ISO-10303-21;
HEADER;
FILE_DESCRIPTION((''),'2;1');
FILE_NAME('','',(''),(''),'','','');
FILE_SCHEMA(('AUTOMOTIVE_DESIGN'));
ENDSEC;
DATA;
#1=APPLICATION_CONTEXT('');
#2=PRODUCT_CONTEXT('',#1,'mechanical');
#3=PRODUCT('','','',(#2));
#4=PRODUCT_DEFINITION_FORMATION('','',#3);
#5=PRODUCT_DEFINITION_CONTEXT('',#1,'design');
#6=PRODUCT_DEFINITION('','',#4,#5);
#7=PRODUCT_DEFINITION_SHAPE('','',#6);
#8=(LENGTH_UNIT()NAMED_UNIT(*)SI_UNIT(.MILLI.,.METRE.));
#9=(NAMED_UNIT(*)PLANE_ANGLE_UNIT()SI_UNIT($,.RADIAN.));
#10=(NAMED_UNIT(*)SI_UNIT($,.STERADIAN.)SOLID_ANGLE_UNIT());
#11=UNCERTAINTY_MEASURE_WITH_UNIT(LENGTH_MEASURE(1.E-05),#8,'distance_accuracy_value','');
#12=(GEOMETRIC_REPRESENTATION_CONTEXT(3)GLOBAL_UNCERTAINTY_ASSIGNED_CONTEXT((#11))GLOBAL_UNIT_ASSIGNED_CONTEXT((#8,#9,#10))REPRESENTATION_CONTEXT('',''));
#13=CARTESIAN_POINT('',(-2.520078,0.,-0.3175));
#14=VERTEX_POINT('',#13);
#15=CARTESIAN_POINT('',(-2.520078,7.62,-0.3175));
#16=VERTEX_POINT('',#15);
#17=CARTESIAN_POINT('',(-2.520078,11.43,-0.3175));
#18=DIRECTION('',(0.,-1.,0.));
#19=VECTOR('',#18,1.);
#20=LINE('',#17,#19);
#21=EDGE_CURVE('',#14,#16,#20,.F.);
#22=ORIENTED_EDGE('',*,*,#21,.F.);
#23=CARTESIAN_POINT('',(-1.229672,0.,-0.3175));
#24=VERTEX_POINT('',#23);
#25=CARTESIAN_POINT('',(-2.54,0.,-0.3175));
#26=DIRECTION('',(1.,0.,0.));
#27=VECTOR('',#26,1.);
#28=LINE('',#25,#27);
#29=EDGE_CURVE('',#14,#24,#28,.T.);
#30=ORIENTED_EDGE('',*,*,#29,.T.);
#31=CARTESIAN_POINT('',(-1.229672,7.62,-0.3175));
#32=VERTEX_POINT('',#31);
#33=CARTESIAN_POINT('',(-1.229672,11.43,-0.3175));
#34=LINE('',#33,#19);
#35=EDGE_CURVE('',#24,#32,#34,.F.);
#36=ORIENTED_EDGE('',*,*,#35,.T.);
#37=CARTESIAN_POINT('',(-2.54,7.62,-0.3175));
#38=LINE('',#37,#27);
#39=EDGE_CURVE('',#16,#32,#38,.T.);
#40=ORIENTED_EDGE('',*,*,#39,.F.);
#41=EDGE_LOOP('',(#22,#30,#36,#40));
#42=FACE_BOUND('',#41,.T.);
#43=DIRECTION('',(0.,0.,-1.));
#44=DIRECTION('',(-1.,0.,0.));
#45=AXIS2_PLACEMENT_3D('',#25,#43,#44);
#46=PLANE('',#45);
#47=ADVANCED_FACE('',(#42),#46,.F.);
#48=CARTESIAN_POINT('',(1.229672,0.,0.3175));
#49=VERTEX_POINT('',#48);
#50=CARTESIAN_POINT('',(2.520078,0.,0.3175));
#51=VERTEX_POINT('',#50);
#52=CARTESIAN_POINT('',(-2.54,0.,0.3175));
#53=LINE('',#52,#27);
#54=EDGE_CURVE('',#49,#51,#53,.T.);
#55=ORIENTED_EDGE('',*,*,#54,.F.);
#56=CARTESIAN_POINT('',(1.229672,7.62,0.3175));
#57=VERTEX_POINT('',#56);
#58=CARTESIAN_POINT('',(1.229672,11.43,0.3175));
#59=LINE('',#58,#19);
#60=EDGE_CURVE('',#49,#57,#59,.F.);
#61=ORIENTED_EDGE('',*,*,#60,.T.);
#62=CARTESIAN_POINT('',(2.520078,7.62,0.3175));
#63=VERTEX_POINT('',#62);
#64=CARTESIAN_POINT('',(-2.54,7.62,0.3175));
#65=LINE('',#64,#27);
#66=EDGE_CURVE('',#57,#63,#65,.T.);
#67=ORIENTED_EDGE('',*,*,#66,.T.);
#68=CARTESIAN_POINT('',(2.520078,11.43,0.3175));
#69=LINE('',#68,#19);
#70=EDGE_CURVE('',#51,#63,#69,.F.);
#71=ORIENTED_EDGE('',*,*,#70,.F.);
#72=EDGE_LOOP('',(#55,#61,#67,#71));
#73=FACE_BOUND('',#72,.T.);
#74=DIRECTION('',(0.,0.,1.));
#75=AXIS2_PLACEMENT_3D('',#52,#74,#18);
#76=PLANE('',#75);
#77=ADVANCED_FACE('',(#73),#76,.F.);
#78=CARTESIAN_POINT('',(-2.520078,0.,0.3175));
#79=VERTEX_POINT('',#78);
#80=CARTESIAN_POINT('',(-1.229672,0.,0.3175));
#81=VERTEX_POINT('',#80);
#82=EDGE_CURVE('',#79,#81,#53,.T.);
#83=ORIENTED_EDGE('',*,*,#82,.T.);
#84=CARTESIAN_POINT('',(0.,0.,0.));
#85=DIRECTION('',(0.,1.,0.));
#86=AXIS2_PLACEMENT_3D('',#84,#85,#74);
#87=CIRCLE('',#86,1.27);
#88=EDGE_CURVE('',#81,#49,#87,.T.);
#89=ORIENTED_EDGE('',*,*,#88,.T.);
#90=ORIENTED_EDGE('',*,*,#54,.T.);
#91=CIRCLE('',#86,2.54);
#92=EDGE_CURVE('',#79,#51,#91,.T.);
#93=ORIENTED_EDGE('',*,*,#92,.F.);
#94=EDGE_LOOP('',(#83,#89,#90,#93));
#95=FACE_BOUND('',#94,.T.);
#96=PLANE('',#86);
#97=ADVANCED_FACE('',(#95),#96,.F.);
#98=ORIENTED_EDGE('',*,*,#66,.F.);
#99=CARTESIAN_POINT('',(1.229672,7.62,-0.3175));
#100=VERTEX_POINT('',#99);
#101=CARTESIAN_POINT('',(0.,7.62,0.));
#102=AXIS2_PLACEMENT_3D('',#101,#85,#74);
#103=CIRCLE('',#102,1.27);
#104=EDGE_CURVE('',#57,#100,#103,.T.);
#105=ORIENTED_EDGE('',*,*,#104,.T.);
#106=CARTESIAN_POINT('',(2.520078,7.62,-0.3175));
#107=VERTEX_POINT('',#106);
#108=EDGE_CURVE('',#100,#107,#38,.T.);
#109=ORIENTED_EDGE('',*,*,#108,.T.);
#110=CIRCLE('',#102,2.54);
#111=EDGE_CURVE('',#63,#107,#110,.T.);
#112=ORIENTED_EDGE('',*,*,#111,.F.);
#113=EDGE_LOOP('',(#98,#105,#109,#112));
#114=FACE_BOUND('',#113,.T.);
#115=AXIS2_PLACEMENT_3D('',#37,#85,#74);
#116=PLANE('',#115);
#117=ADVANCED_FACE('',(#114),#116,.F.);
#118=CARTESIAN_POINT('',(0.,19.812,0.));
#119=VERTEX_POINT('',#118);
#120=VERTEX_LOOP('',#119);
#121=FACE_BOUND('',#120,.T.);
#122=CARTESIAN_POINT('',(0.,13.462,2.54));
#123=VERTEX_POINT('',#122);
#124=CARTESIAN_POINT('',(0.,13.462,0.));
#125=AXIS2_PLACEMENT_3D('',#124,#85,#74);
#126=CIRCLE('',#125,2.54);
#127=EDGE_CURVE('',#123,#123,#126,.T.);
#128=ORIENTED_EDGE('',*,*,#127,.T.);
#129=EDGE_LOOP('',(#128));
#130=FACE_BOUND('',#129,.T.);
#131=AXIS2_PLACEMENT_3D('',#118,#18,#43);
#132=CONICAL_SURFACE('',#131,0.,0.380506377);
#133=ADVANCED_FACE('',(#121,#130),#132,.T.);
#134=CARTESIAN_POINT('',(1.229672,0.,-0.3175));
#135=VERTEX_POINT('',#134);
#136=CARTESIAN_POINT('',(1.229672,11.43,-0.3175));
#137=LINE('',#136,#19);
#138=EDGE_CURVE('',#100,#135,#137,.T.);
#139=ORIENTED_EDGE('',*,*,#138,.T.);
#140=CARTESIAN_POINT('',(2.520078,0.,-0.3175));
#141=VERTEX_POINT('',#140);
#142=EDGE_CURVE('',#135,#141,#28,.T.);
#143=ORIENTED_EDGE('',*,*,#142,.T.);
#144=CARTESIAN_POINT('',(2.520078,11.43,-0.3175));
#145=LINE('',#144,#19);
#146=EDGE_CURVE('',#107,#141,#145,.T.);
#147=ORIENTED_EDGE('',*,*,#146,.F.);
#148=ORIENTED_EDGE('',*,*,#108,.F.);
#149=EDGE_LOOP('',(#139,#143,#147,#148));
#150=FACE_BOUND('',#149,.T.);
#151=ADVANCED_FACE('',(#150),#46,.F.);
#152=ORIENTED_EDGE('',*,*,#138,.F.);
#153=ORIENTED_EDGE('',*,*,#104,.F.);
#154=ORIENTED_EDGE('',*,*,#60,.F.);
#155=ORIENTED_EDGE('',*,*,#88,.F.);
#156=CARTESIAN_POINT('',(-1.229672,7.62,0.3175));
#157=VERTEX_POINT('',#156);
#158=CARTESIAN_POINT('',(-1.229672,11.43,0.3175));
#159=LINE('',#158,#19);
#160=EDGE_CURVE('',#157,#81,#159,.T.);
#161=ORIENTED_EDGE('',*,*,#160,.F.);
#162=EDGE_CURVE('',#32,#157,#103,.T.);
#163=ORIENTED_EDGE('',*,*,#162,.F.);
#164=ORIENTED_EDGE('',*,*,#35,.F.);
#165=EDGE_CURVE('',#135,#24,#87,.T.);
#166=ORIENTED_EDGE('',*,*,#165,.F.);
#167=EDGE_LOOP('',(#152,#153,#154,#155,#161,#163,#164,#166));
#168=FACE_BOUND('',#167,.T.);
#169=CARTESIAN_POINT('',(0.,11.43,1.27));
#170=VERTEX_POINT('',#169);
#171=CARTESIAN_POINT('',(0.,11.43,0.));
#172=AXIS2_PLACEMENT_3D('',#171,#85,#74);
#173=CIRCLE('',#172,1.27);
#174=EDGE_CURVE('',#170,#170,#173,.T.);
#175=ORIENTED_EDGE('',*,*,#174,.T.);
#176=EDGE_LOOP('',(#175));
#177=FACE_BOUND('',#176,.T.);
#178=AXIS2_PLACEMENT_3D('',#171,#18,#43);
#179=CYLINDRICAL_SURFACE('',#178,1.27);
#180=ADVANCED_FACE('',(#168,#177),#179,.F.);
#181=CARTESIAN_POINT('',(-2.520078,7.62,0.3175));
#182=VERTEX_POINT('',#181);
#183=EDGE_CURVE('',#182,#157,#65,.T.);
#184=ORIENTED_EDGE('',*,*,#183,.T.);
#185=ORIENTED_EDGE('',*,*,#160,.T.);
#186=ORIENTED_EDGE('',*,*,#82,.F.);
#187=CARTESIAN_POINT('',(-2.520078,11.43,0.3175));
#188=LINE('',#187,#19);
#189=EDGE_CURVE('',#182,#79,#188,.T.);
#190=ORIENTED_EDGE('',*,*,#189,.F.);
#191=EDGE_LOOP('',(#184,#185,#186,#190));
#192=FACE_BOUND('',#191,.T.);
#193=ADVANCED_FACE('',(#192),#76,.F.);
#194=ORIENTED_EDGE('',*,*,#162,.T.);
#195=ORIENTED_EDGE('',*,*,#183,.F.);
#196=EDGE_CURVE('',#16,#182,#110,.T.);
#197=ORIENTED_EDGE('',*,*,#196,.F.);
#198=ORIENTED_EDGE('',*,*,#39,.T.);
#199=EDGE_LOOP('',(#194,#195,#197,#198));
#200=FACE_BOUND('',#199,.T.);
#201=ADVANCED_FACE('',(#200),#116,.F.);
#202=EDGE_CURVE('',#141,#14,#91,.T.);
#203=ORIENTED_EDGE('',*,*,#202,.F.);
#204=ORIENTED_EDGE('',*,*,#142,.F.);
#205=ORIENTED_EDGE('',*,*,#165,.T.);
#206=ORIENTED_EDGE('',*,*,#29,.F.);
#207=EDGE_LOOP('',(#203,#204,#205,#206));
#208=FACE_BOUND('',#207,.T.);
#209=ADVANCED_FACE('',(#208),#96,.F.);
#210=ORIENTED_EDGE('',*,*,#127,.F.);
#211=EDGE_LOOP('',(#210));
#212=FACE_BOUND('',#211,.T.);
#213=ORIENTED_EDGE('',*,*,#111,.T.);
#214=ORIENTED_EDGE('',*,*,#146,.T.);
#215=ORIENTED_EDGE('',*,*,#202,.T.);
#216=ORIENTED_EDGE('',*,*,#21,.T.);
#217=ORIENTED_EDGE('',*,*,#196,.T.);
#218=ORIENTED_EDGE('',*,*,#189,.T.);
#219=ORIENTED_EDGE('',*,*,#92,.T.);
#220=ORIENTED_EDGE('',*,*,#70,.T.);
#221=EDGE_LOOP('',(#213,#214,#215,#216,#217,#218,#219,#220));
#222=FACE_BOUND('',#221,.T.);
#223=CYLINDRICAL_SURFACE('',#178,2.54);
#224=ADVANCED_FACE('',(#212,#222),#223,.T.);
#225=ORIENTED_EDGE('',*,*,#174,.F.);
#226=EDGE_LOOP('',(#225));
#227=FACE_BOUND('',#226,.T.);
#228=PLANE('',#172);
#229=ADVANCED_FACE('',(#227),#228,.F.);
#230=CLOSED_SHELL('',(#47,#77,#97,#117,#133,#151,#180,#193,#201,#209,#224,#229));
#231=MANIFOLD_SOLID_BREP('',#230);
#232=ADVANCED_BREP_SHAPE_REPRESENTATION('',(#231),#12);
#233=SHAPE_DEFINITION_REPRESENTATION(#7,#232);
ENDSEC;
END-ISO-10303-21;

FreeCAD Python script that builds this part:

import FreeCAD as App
import Part
import Sketcher

V = App.Vector
Q = App.Units.Quantity


def add_polygon(sketch, points):
    """Adds a closed chain of lines whose ends are joined by coincident constraints."""
    first, n = sketch.GeometryCount, len(points)
    for a, b in zip(points, points[1:] + points[:1]):
        sketch.addGeometry(Part.LineSegment(App.Vector(*a, 0), App.Vector(*b, 0)), False)
    for i in range(n):
        sketch.addConstraint(Sketcher.Constraint("Coincident", first + i, 2, first + (i + 1) % n, 1))

doc = App.newDocument("Part")
params = doc.addObject("Spreadsheet::Sheet", "Params")
for row, (alias, value) in enumerate([
    ("sketch1_diameter", "0.2 in"),
    ("sketch1_diameter2", "0.1 in"),
    ("pad1_length", "0.45 in"),
    ("sketch2_diameter", "0.2 in"),
    ("pad2_length", "0.08 in"),
    ("sketch3_height", "0.1 in"),
    ("sketch3_width", "0.25 in"),
    ("revolution_angle", "360 deg"),
    ("sketch4_width", "0.3 in"),
    ("sketch4_height", "0.025 in"),
], start=1):
    params.set(f"A{row}", alias)
    params.set(f"B{row}", "=" + value)
    params.setAlias(f"B{row}", alias)

body = doc.addObject("PartDesign::Body", "Body")

# Sketch on XZ plane
sketch1 = body.newObject("Sketcher::SketchObject", "Sketch")
sketch1.AttachmentSupport = (doc.getObject("XZ_Plane"), [""])
sketch1.MapMode = "FlatFace"
sketch1.addGeometry([
    Part.Circle(V(0, 0, 0), V(0, 0, 1), 2.5),
    Part.Circle(V(0, 0, 0), V(0, 0, 1), 1.3),
], False)
sketch1.addConstraint([
    Sketcher.Constraint("Coincident", 0, 3, -1, 1),
    Sketcher.Constraint("Coincident", 1, 3, -1, 1),
    Sketcher.Constraint("Diameter", 0, Q("0.2 in")),
    Sketcher.Constraint("Diameter", 1, Q("0.1 in")),
])
sketch1.setExpression("Constraints[2]", "Params.sketch1_diameter")
sketch1.setExpression("Constraints[3]", "Params.sketch1_diameter2")
pad1 = body.newObject("PartDesign::Pad", "Pad")
pad1.Profile = sketch1
pad1.setExpression("Length", "Params.pad1_length")
pad1.Reversed = True

# Sketch on XZ plane
sketch2 = body.newObject("Sketcher::SketchObject", "Sketch001")
sketch2.AttachmentSupport = (doc.getObject("XZ_Plane"), [""])
sketch2.MapMode = "FlatFace"
sketch2.AttachmentOffset = App.Placement(V(0, 0, -0.45 * 25.4), App.Rotation())
sketch2.addGeometry(Part.Circle(V(0, 0, 0), V(0, 0, 1), 2.5), False)
sketch2.addConstraint([
    Sketcher.Constraint("Coincident", 0, 3, -1, 1),
    Sketcher.Constraint("Diameter", 0, Q("0.2 in")),
])
sketch2.setExpression("Constraints[1]", "Params.sketch2_diameter")
pad2 = body.newObject("PartDesign::Pad", "Pad001")
pad2.Profile = sketch2
pad2.setExpression("Length", "Params.pad2_length")
pad2.Reversed = True

# Sketch on YZ plane
sketch3 = body.newObject("Sketcher::SketchObject", "Sketch002")
sketch3.AttachmentSupport = (doc.getObject("YZ_Plane"), [""])
sketch3.MapMode = "FlatFace"
add_polygon(sketch3, [(19.8, 0), (13.5, 0), (13.5, -2.5)])  # lines 0-2
sketch3.addConstraint([
    Sketcher.Constraint("Horizontal", 0),
    Sketcher.Constraint("Vertical", 1),
    Sketcher.Constraint("PointOnObject", 0, 2, -1),
    Sketcher.Constraint("DistanceY", 1, 2, 1, 1, Q("0.1 in")),
    Sketcher.Constraint("DistanceX", 0, 2, 0, 1, Q("0.25 in")),
    Sketcher.Constraint("DistanceX", -1, 1, 0, 2, Q("0.53 in")),
])
sketch3.setExpression("Constraints[6]", "Params.sketch3_height")
sketch3.setExpression("Constraints[7]", "Params.sketch3_width")
revolution = body.newObject("PartDesign::Revolution", "Revolution")
revolution.Profile = sketch3
revolution.ReferenceAxis = (sketch3, ["H_Axis"])
revolution.setExpression("Angle", "Params.revolution_angle")

# Sketch on YZ plane
sketch4 = body.newObject("Sketcher::SketchObject", "Sketch003")
sketch4.AttachmentSupport = (doc.getObject("YZ_Plane"), [""])
sketch4.MapMode = "FlatFace"
add_polygon(sketch4, [(7.6, 0.3), (0, 0.3), (0, -0.3), (7.6, -0.3)])  # lines 0-3
sketch4.addConstraint([
    Sketcher.Constraint("Horizontal", 0),
    Sketcher.Constraint("Vertical", 1),
    Sketcher.Constraint("Horizontal", 2),
    Sketcher.Constraint("Vertical", 3),
    Sketcher.Constraint("Symmetric", 0, 2, 1, 2, -1, 1),
    Sketcher.Constraint("DistanceX", 0, 2, 0, 1, Q("0.3 in")),
    Sketcher.Constraint("DistanceY", 1, 2, 1, 1, Q("0.025 in")),
])
sketch4.setExpression("Constraints[9]", "Params.sketch4_width")
sketch4.setExpression("Constraints[10]", "Params.sketch4_height")
pocket1 = body.newObject("PartDesign::Pocket", "Pocket")
pocket1.Profile = sketch4
pocket1.Type = "ThroughAll"
pocket1.Midplane = True

doc.recompute()
